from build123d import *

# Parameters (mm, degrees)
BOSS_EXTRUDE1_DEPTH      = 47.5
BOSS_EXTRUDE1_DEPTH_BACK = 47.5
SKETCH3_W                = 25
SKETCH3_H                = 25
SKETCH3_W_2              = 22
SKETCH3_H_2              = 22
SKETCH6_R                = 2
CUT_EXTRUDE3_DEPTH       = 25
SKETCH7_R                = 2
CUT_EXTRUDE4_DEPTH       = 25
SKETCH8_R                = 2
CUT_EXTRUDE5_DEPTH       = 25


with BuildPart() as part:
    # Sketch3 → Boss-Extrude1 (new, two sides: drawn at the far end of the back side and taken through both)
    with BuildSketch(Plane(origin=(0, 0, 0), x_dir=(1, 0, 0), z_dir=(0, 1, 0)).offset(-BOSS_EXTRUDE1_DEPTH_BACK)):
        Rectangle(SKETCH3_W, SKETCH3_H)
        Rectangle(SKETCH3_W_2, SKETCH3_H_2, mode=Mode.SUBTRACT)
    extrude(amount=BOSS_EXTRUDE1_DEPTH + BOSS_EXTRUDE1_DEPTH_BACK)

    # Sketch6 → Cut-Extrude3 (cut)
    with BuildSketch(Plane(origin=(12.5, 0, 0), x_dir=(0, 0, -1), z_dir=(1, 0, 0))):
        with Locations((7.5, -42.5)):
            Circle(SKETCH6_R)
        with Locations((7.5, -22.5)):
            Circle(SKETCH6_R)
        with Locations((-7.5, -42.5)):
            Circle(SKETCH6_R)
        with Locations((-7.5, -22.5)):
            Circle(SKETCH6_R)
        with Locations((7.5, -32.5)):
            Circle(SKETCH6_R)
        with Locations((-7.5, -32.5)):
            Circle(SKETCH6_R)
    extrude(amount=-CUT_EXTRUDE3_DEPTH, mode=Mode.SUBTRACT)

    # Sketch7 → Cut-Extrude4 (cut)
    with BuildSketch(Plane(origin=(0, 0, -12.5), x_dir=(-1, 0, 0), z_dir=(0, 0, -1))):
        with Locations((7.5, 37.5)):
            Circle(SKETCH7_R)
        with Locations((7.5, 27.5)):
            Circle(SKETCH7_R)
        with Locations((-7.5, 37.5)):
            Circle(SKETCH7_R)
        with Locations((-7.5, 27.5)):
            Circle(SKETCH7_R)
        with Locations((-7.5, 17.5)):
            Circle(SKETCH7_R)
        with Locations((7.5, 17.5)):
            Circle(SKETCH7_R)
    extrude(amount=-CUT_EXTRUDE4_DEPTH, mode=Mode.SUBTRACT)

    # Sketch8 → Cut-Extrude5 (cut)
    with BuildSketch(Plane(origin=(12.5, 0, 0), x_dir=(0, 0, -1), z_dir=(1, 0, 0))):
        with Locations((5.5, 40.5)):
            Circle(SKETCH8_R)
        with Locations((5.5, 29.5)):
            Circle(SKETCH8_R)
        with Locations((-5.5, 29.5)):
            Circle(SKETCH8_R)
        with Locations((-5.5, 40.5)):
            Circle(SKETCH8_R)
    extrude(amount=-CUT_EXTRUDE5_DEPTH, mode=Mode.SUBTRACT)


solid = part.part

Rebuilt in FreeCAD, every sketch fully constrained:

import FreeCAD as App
import Part
import Sketcher
from FreeCAD import Vector

doc = App.newDocument("Part")
body = doc.addObject("PartDesign::Body", "Body")

# Sketch on XZ plane
sketch1 = body.newObject("Sketcher::SketchObject", "Sketch")
sketch1.AttachmentSupport = (doc.getObject("XZ_Plane"), [""])
sketch1.MapMode = "FlatFace"
sketch1.addGeometry(Part.LineSegment(Vector(-12, -12, 0), Vector(-12, 12, 0)), False)
sketch1.addGeometry(Part.LineSegment(Vector(-12, 12, 0), Vector(12, 12, 0)), False)
sketch1.addGeometry(Part.LineSegment(Vector(12, 12, 0), Vector(12, -12, 0)), False)
sketch1.addGeometry(Part.LineSegment(Vector(12, -12, 0), Vector(-12, -12, 0)), False)
sketch1.addGeometry(Part.LineSegment(Vector(11, 11, 0), Vector(-11, 11, 0)), False)
sketch1.addGeometry(Part.LineSegment(Vector(-11, 11, 0), Vector(-11, -11, 0)), False)
sketch1.addGeometry(Part.LineSegment(Vector(-11, -11, 0), Vector(11, -11, 0)), False)
sketch1.addGeometry(Part.LineSegment(Vector(11, -11, 0), Vector(11, 11, 0)), False)
sketch1.addConstraint(Sketcher.Constraint("Coincident", 0, 2, 1, 1))
sketch1.addConstraint(Sketcher.Constraint("Coincident", 1, 2, 2, 1))
sketch1.addConstraint(Sketcher.Constraint("Coincident", 2, 2, 3, 1))
sketch1.addConstraint(Sketcher.Constraint("Coincident", 3, 2, 0, 1))
sketch1.addConstraint(Sketcher.Constraint("Coincident", 4, 2, 5, 1))
sketch1.addConstraint(Sketcher.Constraint("Coincident", 5, 2, 6, 1))
sketch1.addConstraint(Sketcher.Constraint("Coincident", 6, 2, 7, 1))
sketch1.addConstraint(Sketcher.Constraint("Coincident", 7, 2, 4, 1))
sketch1.addConstraint(Sketcher.Constraint("Vertical", 0))
sketch1.addConstraint(Sketcher.Constraint("Horizontal", 1))
sketch1.addConstraint(Sketcher.Constraint("Vertical", 2))
sketch1.addConstraint(Sketcher.Constraint("Horizontal", 3))
sketch1.addConstraint(Sketcher.Constraint("Horizontal", 4))
sketch1.addConstraint(Sketcher.Constraint("Vertical", 5))
sketch1.addConstraint(Sketcher.Constraint("Horizontal", 6))
sketch1.addConstraint(Sketcher.Constraint("Vertical", 7))
sketch1.addConstraint(Sketcher.Constraint("Symmetric", 0, 2, 2, 2, -1, 1))
sketch1.addConstraint(Sketcher.Constraint("Symmetric", 4, 2, 6, 2, -1, 1))
sketch1.addConstraint(Sketcher.Constraint("Equal", 3, 0))
sketch1.addConstraint(Sketcher.Constraint("Equal", 6, 5))
sketch1.addConstraint(Sketcher.Constraint("DistanceX", 1, 1, 1, 2, 25.0))
sketch1.addConstraint(Sketcher.Constraint("DistanceX", 4, 2, 4, 1, 22.0))
pad1 = body.newObject("PartDesign::Pad", "Pad")
pad1.Profile = sketch1
pad1.Type = "TwoLengths"
pad1.Length = 47.5
pad1.Length2 = 47.5
pad1.Reversed = True

# Sketch on YZ plane
sketch2 = body.newObject("Sketcher::SketchObject", "Sketch001")
sketch2.AttachmentSupport = (doc.getObject("YZ_Plane"), [""])
sketch2.MapMode = "FlatFace"
sketch2.AttachmentOffset = App.Placement(Vector(0, 0, 12.5), App.Rotation())
sketch2.addGeometry(Part.Circle(Vector(-42.5, -7.5, 0), Vector(0, 0, 1), 2), False)
sketch2.addGeometry(Part.Circle(Vector(-22.5, -7.5, 0), Vector(0, 0, 1), 2), False)
sketch2.addGeometry(Part.Circle(Vector(-42.5, 7.5, 0), Vector(0, 0, 1), 2), False)
sketch2.addGeometry(Part.Circle(Vector(-22.5, 7.5, 0), Vector(0, 0, 1), 2), False)
sketch2.addGeometry(Part.Circle(Vector(-32.5, -7.5, 0), Vector(0, 0, 1), 2), False)
sketch2.addGeometry(Part.Circle(Vector(-32.5, 7.5, 0), Vector(0, 0, 1), 2), False)
sketch2.addConstraint(Sketcher.Constraint("Equal", 0, 1))
sketch2.addConstraint(Sketcher.Constraint("Equal", 1, 2))
sketch2.addConstraint(Sketcher.Constraint("Equal", 2, 3))
sketch2.addConstraint(Sketcher.Constraint("Equal", 3, 4))
sketch2.addConstraint(Sketcher.Constraint("Equal", 4, 5))
sketch2.addConstraint(Sketcher.Constraint("Symmetric", 0, 3, 2, 3, -1))
sketch2.addConstraint(Sketcher.Constraint("Symmetric", 1, 3, 3, 3, -1))
sketch2.addConstraint(Sketcher.Constraint("Symmetric", 4, 3, 5, 3, -1))
sketch2.addConstraint(Sketcher.Constraint("Horizontal", 0, 3, 1, 3))
sketch2.addConstraint(Sketcher.Constraint("Horizontal", 1, 3, 4, 3))
sketch2.addConstraint(Sketcher.Constraint("Diameter", 0, 4.0))
sketch2.addConstraint(Sketcher.Constraint("DistanceX", 0, 3, 1, 3, 20.0))
sketch2.addConstraint(Sketcher.Constraint("DistanceY", 0, 3, 2, 3, 15.0))
sketch2.addConstraint(Sketcher.Constraint("DistanceX", 0, 3, 4, 3, 10.0))
sketch2.addConstraint(Sketcher.Constraint("DistanceX", 0, 3, -1, 1, 42.5))
pocket1 = body.newObject("PartDesign::Pocket", "Pocket")
pocket1.Profile = sketch2
pocket1.Length = 25

# Sketch on XY plane
sketch3 = body.newObject("Sketcher::SketchObject", "Sketch002")
sketch3.AttachmentSupport = (doc.getObject("XY_Plane"), [""])
sketch3.MapMode = "FlatFace"
sketch3.AttachmentOffset = App.Placement(Vector(0, 0, -12.5), App.Rotation())
sketch3.addGeometry(Part.Circle(Vector(-7.5, 37.5, 0), Vector(0, 0, 1), 2), False)
sketch3.addGeometry(Part.Circle(Vector(-7.5, 27.5, 0), Vector(0, 0, 1), 2), False)
sketch3.addGeometry(Part.Circle(Vector(7.5, 37.5, 0), Vector(0, 0, 1), 2), False)
sketch3.addGeometry(Part.Circle(Vector(7.5, 27.5, 0), Vector(0, 0, 1), 2), False)
sketch3.addGeometry(Part.Circle(Vector(7.5, 17.5, 0), Vector(0, 0, 1), 2), False)
sketch3.addGeometry(Part.Circle(Vector(-7.5, 17.5, 0), Vector(0, 0, 1), 2), False)
sketch3.addConstraint(Sketcher.Constraint("Equal", 0, 1))
sketch3.addConstraint(Sketcher.Constraint("Equal", 1, 2))
sketch3.addConstraint(Sketcher.Constraint("Equal", 2, 3))
sketch3.addConstraint(Sketcher.Constraint("Equal", 3, 4))
sketch3.addConstraint(Sketcher.Constraint("Equal", 4, 5))
sketch3.addConstraint(Sketcher.Constraint("Symmetric", 0, 3, 2, 3, -2))
sketch3.addConstraint(Sketcher.Constraint("Symmetric", 1, 3, 3, 3, -2))
sketch3.addConstraint(Sketcher.Constraint("Symmetric", 4, 3, 5, 3, -2))
sketch3.addConstraint(Sketcher.Constraint("Vertical", 0, 3, 1, 3))
sketch3.addConstraint(Sketcher.Constraint("Vertical", 3, 3, 4, 3))
sketch3.addConstraint(Sketcher.Constraint("Diameter", 0, 4.0))
sketch3.addConstraint(Sketcher.Constraint("DistanceY", 1, 3, 0, 3, 10.0))
sketch3.addConstraint(Sketcher.Constraint("DistanceX", 0, 3, 2, 3, 15.0))
sketch3.addConstraint(Sketcher.Constraint("DistanceY", 4, 3, 3, 3, 10.0))
sketch3.addConstraint(Sketcher.Constraint("DistanceY", -1, 1, 0, 3, 37.5))
pocket2 = body.newObject("PartDesign::Pocket", "Pocket001")
pocket2.Profile = sketch3
pocket2.Length = 25
pocket2.Reversed = True

# Sketch on YZ plane
sketch4 = body.newObject("Sketcher::SketchObject", "Sketch003")
sketch4.AttachmentSupport = (doc.getObject("YZ_Plane"), [""])
sketch4.MapMode = "FlatFace"
sketch4.AttachmentOffset = App.Placement(Vector(0, 0, 12.5), App.Rotation())
sketch4.addGeometry(Part.Circle(Vector(40.5, -5.5, 0), Vector(0, 0, 1), 2), False)
sketch4.addGeometry(Part.Circle(Vector(29.5, -5.5, 0), Vector(0, 0, 1), 2), False)
sketch4.addGeometry(Part.Circle(Vector(29.5, 5.5, 0), Vector(0, 0, 1), 2), False)
sketch4.addGeometry(Part.Circle(Vector(40.5, 5.5, 0), Vector(0, 0, 1), 2), False)
sketch4.addConstraint(Sketcher.Constraint("Equal", 0, 1))
sketch4.addConstraint(Sketcher.Constraint("Equal", 1, 2))
sketch4.addConstraint(Sketcher.Constraint("Equal", 2, 3))
sketch4.addConstraint(Sketcher.Constraint("Symmetric", 1, 3, 2, 3, -1))
sketch4.addConstraint(Sketcher.Constraint("Symmetric", 0, 3, 3, 3, -1))
sketch4.addConstraint(Sketcher.Constraint("Horizontal", 0, 3, 1, 3))
sketch4.addConstraint(Sketcher.Constraint("Diameter", 0, 4.0))
sketch4.addConstraint(Sketcher.Constraint("DistanceX", 1, 3, 0, 3, 11.0))
sketch4.addConstraint(Sketcher.Constraint("DistanceY", 1, 3, 2, 3, 11.0))
sketch4.addConstraint(Sketcher.Constraint("DistanceX", -1, 1, 0, 3, 40.5))
pocket3 = body.newObject("PartDesign::Pocket", "Pocket002")
pocket3.Profile = sketch4
pocket3.Length = 25

doc.recompute()
